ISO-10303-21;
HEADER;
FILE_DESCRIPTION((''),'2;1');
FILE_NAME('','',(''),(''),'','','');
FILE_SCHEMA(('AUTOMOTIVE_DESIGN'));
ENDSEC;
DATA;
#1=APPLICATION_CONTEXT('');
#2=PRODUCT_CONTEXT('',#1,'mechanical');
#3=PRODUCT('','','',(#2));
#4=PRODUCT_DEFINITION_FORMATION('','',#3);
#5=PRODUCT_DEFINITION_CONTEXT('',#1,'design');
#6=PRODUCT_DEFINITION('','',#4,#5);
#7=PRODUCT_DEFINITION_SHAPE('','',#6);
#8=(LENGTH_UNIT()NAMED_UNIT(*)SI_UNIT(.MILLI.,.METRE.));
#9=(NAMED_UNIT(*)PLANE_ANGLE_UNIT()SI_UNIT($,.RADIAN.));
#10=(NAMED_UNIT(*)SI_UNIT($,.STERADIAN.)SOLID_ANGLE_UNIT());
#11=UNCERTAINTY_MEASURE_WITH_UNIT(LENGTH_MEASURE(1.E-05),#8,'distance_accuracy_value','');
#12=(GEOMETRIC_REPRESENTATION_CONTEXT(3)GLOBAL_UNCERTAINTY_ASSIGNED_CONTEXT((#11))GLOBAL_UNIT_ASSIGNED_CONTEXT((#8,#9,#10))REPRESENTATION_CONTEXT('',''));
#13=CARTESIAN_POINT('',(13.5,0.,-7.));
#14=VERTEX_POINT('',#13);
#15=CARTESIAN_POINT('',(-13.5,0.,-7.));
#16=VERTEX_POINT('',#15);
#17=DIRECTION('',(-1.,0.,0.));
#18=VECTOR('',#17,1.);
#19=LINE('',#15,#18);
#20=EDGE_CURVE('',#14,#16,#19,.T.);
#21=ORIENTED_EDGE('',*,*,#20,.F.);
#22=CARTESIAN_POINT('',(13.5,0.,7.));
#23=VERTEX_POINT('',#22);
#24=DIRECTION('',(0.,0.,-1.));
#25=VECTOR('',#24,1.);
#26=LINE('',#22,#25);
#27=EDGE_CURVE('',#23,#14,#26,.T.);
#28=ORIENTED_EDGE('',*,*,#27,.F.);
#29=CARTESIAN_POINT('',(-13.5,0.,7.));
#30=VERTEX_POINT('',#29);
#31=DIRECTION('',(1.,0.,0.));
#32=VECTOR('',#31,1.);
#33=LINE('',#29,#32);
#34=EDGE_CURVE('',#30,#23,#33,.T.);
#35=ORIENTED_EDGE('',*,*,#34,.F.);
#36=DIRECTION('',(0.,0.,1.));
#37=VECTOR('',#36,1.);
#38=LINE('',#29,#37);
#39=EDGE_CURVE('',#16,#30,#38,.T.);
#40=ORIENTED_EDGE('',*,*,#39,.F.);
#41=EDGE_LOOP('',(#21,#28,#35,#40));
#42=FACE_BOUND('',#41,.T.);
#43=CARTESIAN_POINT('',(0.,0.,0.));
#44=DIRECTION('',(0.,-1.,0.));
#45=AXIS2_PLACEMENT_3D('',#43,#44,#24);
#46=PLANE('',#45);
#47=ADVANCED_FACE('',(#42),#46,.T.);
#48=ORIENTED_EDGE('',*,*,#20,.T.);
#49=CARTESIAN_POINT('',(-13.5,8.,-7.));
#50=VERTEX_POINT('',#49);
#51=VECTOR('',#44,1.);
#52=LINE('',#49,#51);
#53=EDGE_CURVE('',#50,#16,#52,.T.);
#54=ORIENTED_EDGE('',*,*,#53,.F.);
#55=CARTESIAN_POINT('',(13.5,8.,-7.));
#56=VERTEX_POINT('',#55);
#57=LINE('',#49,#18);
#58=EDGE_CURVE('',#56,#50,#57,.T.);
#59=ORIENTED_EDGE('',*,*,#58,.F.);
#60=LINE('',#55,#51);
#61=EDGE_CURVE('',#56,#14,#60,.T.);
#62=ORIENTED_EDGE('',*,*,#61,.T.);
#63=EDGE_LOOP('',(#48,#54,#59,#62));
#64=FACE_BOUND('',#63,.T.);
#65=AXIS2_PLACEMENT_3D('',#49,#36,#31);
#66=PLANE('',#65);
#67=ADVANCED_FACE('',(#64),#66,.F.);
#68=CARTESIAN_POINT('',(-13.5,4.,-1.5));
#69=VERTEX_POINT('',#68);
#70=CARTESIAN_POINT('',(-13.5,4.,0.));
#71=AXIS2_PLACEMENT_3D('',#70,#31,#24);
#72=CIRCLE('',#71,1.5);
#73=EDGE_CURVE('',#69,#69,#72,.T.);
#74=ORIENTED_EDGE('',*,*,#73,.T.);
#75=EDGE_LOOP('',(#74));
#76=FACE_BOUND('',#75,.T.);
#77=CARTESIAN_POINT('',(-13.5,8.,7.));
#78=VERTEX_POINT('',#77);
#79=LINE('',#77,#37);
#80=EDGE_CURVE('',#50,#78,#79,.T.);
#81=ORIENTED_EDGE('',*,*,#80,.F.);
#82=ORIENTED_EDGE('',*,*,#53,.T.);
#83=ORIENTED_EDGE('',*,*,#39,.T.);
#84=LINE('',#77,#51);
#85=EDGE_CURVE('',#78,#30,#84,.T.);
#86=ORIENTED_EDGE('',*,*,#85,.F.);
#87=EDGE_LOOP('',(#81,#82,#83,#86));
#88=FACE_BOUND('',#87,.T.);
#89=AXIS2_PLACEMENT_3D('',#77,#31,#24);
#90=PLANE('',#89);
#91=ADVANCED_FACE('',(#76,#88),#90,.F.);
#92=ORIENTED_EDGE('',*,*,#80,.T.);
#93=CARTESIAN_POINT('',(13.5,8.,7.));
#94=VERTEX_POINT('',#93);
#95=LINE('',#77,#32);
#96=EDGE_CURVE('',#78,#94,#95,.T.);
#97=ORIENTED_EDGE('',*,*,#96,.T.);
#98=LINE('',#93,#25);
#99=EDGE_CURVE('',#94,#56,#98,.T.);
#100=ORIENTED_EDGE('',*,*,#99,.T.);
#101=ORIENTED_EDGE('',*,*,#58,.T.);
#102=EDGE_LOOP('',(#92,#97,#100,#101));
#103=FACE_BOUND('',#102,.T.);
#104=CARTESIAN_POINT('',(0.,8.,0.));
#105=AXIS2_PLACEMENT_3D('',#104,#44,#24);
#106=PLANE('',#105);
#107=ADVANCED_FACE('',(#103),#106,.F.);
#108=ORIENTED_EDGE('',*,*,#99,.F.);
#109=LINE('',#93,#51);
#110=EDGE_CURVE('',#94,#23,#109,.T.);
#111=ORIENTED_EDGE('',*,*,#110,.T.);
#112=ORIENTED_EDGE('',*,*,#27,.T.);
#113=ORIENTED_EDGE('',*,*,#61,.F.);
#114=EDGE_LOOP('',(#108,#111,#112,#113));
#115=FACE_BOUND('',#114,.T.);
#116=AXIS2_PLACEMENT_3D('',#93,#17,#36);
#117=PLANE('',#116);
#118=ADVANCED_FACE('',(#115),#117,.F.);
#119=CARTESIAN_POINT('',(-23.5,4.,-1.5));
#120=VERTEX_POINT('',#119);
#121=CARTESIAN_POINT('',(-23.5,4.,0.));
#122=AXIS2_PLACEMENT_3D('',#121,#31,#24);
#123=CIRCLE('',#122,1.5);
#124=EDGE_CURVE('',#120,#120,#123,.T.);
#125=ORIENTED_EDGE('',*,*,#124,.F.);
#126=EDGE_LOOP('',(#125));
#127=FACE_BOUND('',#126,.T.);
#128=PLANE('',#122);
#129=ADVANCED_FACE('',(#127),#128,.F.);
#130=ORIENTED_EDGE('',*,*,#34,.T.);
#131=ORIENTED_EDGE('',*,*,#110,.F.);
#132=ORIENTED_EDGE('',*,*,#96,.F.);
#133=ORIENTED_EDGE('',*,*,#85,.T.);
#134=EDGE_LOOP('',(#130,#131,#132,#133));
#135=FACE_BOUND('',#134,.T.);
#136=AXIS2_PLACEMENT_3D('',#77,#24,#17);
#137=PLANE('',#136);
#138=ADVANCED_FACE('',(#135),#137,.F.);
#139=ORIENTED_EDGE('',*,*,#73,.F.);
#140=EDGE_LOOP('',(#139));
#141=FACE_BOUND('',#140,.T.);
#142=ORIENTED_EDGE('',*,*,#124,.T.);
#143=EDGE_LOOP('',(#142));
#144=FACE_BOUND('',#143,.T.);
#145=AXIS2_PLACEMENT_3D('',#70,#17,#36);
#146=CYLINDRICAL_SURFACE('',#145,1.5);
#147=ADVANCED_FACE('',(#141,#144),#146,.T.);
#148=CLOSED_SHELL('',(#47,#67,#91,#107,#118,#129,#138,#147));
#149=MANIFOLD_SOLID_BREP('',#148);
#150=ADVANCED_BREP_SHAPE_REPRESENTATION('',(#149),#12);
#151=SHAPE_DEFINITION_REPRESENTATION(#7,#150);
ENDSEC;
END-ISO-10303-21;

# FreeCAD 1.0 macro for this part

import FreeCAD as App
import Part
import Sketcher
from FreeCAD import Vector
Q = App.Units.Quantity

doc = App.newDocument("Part")
body = doc.addObject("PartDesign::Body", "Body")

sketch1 = doc.addObject("Sketcher::SketchObject", "Sketch")
body.addObject(sketch1)
sketch1.AttachmentSupport = (doc.XZ_Plane, [""])
sketch1.MapMode = "FlatFace"
sketch1.addGeometry([
    Part.LineSegment(Vector(-14, -7, 0), Vector(-14, 7, 0)),
    Part.LineSegment(Vector(-14, 7, 0), Vector(14, 7, 0)),
    Part.LineSegment(Vector(14, 7, 0), Vector(14, -7, 0)),
    Part.LineSegment(Vector(14, -7, 0), Vector(-14, -7, 0)),
], False)
sketch1.addConstraint([
    Sketcher.Constraint("Coincident", 0, 2, 1, 1),
    Sketcher.Constraint("Coincident", 1, 2, 2, 1),
    Sketcher.Constraint("Coincident", 2, 2, 3, 1),
    Sketcher.Constraint("Coincident", 3, 2, 0, 1),
    Sketcher.Constraint("Vertical", 0),
    Sketcher.Constraint("Horizontal", 1),
    Sketcher.Constraint("Vertical", 2),
    Sketcher.Constraint("Horizontal", 3),
    Sketcher.Constraint("Symmetric", 0, 2, 2, 2, -1, 1),
    Sketcher.Constraint("DistanceX", 1, 1, 1, 2, Q("27 mm")),
    Sketcher.Constraint("DistanceY", 0, 1, 0, 2, Q("14 mm")),
])
pad1 = doc.addObject("PartDesign::Pad", "Pad")
body.addObject(pad1)
pad1.Profile = sketch1
pad1.Length = 8
pad1.Reversed = True

sketch2 = doc.addObject("Sketcher::SketchObject", "Sketch001")
body.addObject(sketch2)
sketch2.AttachmentSupport = (doc.YZ_Plane, [""])
sketch2.MapMode = "FlatFace"
sketch2.AttachmentOffset = App.Placement(Vector(0, 0, -23.5), App.Rotation())
sketch2.addGeometry(Part.Circle(Vector(4, 0, 0), Vector(0, 0, 1), 1.5), False)
sketch2.addConstraint([
    Sketcher.Constraint("PointOnObject", 0, 3, -1),
    Sketcher.Constraint("Diameter", 0, Q("3 mm")),
    Sketcher.Constraint("DistanceX", -1, 1, 0, 3, Q("4 mm")),
])
pad2 = doc.addObject("PartDesign::Pad", "Pad001")
body.addObject(pad2)
pad2.Profile = sketch2
pad2.Length = 10

doc.recompute()
